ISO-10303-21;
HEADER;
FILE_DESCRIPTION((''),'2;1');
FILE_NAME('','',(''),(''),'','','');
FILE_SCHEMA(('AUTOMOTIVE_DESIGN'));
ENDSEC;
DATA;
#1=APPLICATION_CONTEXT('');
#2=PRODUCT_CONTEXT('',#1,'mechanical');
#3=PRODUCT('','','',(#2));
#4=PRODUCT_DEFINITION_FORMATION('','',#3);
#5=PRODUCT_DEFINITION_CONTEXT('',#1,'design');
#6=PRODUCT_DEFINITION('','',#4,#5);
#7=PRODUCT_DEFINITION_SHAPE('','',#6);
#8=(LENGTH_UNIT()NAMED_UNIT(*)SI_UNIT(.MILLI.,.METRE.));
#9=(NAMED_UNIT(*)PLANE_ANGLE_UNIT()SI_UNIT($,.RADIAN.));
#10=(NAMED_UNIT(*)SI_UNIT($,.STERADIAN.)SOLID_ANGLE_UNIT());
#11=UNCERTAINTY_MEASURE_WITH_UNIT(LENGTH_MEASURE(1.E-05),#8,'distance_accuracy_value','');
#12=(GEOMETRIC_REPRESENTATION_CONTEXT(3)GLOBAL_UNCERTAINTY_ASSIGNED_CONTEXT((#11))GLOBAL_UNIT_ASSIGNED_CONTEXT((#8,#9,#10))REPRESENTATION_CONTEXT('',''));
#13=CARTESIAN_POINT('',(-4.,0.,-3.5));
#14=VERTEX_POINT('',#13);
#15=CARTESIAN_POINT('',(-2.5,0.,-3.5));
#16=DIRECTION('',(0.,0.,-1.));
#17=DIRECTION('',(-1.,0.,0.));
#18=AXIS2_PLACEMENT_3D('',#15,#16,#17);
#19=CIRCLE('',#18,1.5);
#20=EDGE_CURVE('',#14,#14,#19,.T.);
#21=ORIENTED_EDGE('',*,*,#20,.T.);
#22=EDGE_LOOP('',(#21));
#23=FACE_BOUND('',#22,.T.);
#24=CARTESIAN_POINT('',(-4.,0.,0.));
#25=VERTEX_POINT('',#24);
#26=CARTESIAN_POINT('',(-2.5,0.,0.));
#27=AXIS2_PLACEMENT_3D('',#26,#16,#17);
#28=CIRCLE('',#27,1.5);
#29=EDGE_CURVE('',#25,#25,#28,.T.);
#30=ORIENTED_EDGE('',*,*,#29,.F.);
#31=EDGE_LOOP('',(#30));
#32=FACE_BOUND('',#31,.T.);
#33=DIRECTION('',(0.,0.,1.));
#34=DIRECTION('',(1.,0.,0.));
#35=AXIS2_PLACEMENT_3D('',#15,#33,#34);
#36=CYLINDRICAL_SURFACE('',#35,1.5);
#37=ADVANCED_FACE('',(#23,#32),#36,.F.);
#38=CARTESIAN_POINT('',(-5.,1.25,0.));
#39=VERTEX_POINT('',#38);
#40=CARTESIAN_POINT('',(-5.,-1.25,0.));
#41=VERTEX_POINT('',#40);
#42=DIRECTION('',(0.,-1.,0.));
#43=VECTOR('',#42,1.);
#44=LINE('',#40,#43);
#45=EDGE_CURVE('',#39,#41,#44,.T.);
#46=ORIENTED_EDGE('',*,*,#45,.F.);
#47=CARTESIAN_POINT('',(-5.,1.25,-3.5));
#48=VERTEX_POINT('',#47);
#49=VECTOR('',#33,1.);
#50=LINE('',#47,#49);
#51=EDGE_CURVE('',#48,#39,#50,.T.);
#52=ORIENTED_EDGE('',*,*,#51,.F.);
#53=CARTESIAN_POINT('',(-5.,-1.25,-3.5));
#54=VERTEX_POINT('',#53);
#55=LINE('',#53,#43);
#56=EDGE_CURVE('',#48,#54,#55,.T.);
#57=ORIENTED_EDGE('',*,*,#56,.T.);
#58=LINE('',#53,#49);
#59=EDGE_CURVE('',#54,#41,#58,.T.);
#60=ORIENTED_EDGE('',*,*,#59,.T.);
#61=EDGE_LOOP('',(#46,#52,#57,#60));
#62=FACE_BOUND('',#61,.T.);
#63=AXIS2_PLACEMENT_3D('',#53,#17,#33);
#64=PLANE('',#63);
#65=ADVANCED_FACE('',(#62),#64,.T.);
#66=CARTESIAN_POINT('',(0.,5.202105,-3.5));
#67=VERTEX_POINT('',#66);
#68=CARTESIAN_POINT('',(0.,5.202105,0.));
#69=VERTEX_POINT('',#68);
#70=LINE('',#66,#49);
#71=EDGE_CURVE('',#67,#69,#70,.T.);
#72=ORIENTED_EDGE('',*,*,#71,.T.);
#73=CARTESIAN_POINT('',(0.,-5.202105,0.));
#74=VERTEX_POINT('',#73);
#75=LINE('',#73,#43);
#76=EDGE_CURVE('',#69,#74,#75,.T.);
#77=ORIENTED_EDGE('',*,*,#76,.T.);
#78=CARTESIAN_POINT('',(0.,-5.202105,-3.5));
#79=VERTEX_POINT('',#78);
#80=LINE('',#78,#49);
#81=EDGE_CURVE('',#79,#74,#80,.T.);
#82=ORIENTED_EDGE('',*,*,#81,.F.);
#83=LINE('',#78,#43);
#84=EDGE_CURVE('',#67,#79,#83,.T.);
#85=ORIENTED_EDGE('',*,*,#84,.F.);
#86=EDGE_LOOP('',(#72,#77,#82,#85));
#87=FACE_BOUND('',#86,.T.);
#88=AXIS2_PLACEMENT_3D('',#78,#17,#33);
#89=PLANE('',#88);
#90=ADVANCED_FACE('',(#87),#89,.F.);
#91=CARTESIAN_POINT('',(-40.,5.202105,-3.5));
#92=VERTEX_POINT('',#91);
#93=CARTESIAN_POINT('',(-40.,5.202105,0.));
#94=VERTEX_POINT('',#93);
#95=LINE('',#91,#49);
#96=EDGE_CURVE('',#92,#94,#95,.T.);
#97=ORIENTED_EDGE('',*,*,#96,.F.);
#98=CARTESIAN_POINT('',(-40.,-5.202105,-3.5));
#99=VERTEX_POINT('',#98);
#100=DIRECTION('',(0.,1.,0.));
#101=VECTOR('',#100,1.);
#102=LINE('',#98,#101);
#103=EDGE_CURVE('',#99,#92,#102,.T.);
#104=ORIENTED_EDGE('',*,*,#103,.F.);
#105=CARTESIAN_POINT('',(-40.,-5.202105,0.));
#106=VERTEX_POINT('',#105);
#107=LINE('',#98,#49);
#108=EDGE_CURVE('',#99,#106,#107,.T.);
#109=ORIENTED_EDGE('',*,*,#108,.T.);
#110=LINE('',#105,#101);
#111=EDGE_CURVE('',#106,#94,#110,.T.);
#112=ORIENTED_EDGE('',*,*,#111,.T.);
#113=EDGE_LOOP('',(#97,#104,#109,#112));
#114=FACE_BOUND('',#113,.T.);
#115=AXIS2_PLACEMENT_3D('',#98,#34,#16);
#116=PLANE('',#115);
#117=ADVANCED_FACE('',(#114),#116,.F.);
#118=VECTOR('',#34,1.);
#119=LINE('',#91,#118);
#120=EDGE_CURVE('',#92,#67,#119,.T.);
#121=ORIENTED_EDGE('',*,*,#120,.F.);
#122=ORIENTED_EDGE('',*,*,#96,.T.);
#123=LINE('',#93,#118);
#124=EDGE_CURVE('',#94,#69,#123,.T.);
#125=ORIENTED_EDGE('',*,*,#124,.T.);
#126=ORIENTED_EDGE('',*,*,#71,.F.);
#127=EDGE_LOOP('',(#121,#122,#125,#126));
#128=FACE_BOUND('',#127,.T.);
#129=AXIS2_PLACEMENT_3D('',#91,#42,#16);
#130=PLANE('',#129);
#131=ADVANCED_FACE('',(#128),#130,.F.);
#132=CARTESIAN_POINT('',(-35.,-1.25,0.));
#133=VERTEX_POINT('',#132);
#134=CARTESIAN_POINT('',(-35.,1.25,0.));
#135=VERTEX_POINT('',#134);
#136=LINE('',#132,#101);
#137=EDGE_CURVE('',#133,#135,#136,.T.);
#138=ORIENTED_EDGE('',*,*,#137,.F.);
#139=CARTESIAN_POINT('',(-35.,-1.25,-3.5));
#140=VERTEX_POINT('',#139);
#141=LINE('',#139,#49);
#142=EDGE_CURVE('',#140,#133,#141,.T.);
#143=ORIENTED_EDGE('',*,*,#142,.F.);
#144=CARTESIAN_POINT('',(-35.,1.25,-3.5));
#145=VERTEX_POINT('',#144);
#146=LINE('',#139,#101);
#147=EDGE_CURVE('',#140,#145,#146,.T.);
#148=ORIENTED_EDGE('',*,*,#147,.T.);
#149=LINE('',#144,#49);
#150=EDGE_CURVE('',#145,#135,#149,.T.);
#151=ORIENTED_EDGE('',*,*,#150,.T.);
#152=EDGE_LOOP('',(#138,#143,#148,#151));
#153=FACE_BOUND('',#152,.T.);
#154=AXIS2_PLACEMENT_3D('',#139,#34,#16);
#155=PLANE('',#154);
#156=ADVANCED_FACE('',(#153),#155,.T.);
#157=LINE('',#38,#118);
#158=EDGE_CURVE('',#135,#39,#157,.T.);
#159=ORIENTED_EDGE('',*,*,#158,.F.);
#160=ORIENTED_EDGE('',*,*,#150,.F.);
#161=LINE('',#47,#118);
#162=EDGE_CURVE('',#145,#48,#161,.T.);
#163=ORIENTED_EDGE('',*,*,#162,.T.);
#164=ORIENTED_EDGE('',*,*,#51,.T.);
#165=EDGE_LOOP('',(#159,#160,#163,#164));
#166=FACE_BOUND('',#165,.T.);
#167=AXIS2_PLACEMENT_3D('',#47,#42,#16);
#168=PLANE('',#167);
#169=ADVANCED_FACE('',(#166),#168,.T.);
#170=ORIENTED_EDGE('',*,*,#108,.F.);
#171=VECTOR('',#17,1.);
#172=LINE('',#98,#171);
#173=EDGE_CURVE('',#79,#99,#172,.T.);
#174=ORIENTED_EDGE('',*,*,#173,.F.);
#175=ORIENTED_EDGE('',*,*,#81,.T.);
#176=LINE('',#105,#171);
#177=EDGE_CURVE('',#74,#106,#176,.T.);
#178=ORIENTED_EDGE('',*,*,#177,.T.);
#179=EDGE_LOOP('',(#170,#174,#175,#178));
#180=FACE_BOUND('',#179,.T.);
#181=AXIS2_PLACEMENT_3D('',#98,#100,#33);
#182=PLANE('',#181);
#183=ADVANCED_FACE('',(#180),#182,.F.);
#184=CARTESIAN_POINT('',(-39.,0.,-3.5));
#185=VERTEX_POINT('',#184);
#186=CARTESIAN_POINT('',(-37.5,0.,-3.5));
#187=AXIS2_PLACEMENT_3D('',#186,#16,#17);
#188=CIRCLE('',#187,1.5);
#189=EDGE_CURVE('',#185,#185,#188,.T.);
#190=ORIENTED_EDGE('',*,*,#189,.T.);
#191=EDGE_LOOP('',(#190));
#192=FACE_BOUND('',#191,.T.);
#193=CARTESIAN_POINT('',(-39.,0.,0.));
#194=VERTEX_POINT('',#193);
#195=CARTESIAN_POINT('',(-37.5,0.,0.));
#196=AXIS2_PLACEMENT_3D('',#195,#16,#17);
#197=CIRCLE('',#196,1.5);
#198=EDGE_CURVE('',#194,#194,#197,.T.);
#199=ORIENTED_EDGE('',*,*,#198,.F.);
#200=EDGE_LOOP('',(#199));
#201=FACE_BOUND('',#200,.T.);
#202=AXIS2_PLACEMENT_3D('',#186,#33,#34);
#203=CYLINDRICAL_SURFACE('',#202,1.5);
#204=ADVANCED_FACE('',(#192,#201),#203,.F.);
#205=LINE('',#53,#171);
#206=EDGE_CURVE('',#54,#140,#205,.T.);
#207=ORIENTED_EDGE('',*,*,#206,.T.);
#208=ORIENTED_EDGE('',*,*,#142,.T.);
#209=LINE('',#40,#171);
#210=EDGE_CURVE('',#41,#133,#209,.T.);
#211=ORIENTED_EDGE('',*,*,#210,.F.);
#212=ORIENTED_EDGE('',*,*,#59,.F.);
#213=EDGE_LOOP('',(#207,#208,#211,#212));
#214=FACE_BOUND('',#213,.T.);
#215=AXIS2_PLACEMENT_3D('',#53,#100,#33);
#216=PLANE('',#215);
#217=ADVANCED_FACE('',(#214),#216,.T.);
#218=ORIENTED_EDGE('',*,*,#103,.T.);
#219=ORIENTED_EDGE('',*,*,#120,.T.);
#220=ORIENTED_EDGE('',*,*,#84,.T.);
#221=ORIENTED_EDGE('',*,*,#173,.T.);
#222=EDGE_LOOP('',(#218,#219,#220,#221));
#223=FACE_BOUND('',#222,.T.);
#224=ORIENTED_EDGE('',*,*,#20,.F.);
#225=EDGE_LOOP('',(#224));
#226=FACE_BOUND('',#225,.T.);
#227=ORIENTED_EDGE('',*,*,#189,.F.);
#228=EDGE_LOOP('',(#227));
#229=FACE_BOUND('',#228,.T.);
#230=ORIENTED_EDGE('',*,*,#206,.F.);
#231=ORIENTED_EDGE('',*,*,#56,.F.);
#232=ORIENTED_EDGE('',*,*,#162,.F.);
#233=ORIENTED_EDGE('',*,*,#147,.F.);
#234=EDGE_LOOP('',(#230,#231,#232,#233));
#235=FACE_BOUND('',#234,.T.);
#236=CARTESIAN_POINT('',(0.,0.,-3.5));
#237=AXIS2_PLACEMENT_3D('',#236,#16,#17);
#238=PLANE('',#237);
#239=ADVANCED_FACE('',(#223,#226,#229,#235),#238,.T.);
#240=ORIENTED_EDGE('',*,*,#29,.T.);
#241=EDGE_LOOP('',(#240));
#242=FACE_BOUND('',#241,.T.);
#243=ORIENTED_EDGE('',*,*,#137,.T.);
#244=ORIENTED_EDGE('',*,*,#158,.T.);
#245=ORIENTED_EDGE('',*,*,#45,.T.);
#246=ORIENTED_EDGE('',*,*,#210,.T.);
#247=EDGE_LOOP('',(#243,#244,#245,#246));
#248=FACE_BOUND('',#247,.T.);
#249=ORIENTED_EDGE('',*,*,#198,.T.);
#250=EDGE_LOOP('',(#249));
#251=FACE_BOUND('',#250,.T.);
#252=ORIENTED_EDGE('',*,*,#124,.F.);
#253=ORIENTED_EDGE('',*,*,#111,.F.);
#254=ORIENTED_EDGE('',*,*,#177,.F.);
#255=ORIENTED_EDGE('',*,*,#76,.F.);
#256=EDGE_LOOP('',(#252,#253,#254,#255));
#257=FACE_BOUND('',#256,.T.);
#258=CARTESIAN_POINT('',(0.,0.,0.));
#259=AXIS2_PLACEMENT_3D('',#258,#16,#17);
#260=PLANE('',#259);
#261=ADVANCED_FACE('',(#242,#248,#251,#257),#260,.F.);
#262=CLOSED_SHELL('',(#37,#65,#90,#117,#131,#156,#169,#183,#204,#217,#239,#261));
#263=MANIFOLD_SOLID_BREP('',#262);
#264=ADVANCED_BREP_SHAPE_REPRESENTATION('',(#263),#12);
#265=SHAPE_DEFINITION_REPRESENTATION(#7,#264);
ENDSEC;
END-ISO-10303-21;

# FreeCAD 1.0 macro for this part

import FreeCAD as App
import Part
import Sketcher

V = App.Vector

doc = App.newDocument("Part")
body = doc.addObject("PartDesign::Body", "Body")

sketch1 = doc.addObject("Sketcher::SketchObject", "Sketch")
body.addObject(sketch1)
sketch1.AttachmentSupport = (doc.XY_Plane, [""])
sketch1.MapMode = "FlatFace"
sketch1.addGeometry(Part.LineSegment(V(0, 5.202105, 0), V(0, -5.202105, 0)), False)
sketch1.addGeometry(Part.LineSegment(V(0, -5.202105, 0), V(-40, -5.202105, 0)), False)
sketch1.addGeometry(Part.LineSegment(V(-40, -5.202105, 0), V(-40, 5.202105, 0)), False)
sketch1.addGeometry(Part.LineSegment(V(-40, 5.202105, 0), V(0, 5.202105, 0)), False)
sketch1.addGeometry(Part.Circle(V(-2.5, 0, 0), V(0, 0, 1), 1.5), False)
sketch1.addGeometry(Part.LineSegment(V(-35, -1.25, 0), V(-5, -1.25, 0)), False)
sketch1.addGeometry(Part.LineSegment(V(-5, -1.25, 0), V(-5, 1.25, 0)), False)
sketch1.addGeometry(Part.LineSegment(V(-5, 1.25, 0), V(-35, 1.25, 0)), False)
sketch1.addGeometry(Part.LineSegment(V(-35, 1.25, 0), V(-35, -1.25, 0)), False)
sketch1.addGeometry(Part.Circle(V(-37.5, 0, 0), V(0, 0, 1), 1.5), False)
sketch1.addConstraint(Sketcher.Constraint("Coincident", 0, 2, 1, 1))
sketch1.addConstraint(Sketcher.Constraint("Coincident", 1, 2, 2, 1))
sketch1.addConstraint(Sketcher.Constraint("Coincident", 2, 2, 3, 1))
sketch1.addConstraint(Sketcher.Constraint("Coincident", 3, 2, 0, 1))
sketch1.addConstraint(Sketcher.Constraint("Coincident", 5, 2, 6, 1))
sketch1.addConstraint(Sketcher.Constraint("Coincident", 6, 2, 7, 1))
sketch1.addConstraint(Sketcher.Constraint("Coincident", 7, 2, 8, 1))
sketch1.addConstraint(Sketcher.Constraint("Coincident", 8, 2, 5, 1))
sketch1.addConstraint(Sketcher.Constraint("Vertical", 0))
sketch1.addConstraint(Sketcher.Constraint("Horizontal", 1))
sketch1.addConstraint(Sketcher.Constraint("Vertical", 2))
sketch1.addConstraint(Sketcher.Constraint("Horizontal", 3))
sketch1.addConstraint(Sketcher.Constraint("Horizontal", 5))
sketch1.addConstraint(Sketcher.Constraint("Vertical", 6))
sketch1.addConstraint(Sketcher.Constraint("Horizontal", 7))
sketch1.addConstraint(Sketcher.Constraint("Vertical", 8))
sketch1.addConstraint(Sketcher.Constraint("Equal", 4, 9))
sketch1.addConstraint(Sketcher.Constraint("Symmetric", 0, 2, 3, 2, -1, 1))
sketch1.addConstraint(Sketcher.Constraint("PointOnObject", 4, 3, -1))
sketch1.addConstraint(Sketcher.Constraint("PointOnObject", 9, 3, -1))
sketch1.addConstraint(Sketcher.Constraint("Diameter", 4, 3.0))
sketch1.addConstraint(Sketcher.Constraint("DistanceX", 1, 2, 1, 1, 40.0))
sketch1.addConstraint(Sketcher.Constraint("DistanceX", 5, 1, 5, 2, 30.0))
sketch1.addConstraint(Sketcher.Constraint("DistanceY", 6, 1, 6, 2, 2.5))
sketch1.addConstraint(Sketcher.Constraint("DistanceX", 5, 2, -1, 1, 5.0))
sketch1.addConstraint(Sketcher.Constraint("DistanceX", 9, 3, 4, 3, 35.0))
sketch1.addConstraint(Sketcher.Constraint("DistanceX", 4, 3, -1, 1, 2.5))
sketch1.addConstraint(Sketcher.Constraint("DistanceY", 5, 2, -1, 1, 1.25))
sketch1.addConstraint(Sketcher.Constraint("DistanceY", 0, 2, 0, 1, 10.404209))
pad1 = doc.addObject("PartDesign::Pad", "Pad")
body.addObject(pad1)
pad1.Profile = sketch1
pad1.Length = 3.5
pad1.Reversed = True

doc.recompute()
